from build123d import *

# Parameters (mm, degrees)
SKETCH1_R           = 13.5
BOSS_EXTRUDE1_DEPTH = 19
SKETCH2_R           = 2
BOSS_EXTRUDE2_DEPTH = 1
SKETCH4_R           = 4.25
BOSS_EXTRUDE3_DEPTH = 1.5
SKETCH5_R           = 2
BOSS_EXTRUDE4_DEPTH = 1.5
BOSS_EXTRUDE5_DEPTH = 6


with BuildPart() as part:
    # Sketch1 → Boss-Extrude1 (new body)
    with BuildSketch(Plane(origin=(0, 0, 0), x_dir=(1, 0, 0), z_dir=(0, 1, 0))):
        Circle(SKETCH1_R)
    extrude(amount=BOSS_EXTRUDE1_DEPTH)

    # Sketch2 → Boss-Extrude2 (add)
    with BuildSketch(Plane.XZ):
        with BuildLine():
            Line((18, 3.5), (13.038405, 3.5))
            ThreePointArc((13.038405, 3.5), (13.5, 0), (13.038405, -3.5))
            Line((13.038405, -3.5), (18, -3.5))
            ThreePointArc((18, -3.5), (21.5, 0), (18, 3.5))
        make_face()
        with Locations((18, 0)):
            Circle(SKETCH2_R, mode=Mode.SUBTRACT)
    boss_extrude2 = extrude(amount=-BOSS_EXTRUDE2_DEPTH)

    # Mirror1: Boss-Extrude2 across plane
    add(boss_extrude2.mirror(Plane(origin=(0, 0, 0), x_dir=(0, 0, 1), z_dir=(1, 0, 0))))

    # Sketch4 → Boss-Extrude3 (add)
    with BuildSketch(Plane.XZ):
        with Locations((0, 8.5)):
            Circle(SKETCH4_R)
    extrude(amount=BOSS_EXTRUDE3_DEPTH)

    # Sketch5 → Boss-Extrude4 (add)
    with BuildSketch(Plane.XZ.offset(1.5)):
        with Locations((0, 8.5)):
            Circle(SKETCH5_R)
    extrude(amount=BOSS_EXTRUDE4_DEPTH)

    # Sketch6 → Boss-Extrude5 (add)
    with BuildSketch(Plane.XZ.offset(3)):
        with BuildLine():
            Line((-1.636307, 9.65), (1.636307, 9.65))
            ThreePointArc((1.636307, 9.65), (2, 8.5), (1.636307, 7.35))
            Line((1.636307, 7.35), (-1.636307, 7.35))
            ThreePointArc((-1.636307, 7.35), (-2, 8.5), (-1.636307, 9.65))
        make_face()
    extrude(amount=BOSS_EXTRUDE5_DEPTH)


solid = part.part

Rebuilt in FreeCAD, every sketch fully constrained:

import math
import FreeCAD as App
import Part
import Sketcher

doc = App.newDocument("Part")
body = doc.addObject("PartDesign::Body", "Body")

sketch1 = body.newObject("Sketcher::SketchObject", "Sketch")
sketch1.AttachmentSupport = (doc.getObject("XZ_Plane"), [""])
sketch1.MapMode = "FlatFace"
sketch1.addGeometry(Part.Circle(App.Vector(0, 0, 0), App.Vector(0, 0, 1), 13.5), False)
sketch1.addConstraint(Sketcher.Constraint("Coincident", 0, 3, -1, 1))
sketch1.addConstraint(Sketcher.Constraint("Diameter", 0, 27.0))
pad1 = body.newObject("PartDesign::Pad", "Pad")
pad1.Profile = sketch1
pad1.Length = 19
pad1.Reversed = True

sketch2 = body.newObject("Sketcher::SketchObject", "Sketch001")
sketch2.AttachmentSupport = (doc.getObject("XZ_Plane"), [""])
sketch2.MapMode = "FlatFace"
sketch2.addGeometry(Part.LineSegment(App.Vector(18, 3.5, 0), App.Vector(13.038405, 3.5, 0)), False)
sketch2.addGeometry(Part.ArcOfCircle(Part.Circle(App.Vector(-0.000005, 0, 0), App.Vector(0, 0, 1), 13.500005), math.radians(-15.026108), math.radians(15.026108)), False)
sketch2.addGeometry(Part.LineSegment(App.Vector(13.038405, -3.5, 0), App.Vector(18, -3.5, 0)), False)
sketch2.addGeometry(Part.ArcOfCircle(Part.Circle(App.Vector(18, 0, 0), App.Vector(0, 0, 1), 3.5), math.radians(-90), math.radians(90)), False)
sketch2.addGeometry(Part.Circle(App.Vector(18, 0, 0), App.Vector(0, 0, 1), 2), False)
sketch2.addConstraint(Sketcher.Constraint("Coincident", 0, 2, 1, 2))
sketch2.addConstraint(Sketcher.Constraint("Coincident", 1, 1, 2, 1))
sketch2.addConstraint(Sketcher.Constraint("Tangent", 2, 2, 3, 1))
sketch2.addConstraint(Sketcher.Constraint("Tangent", 3, 2, 0, 1))
sketch2.addConstraint(Sketcher.Constraint("Horizontal", 0))
sketch2.addConstraint(Sketcher.Constraint("Horizontal", 2))
sketch2.addConstraint(Sketcher.Constraint("Coincident", 1, 3, -1, 1))
sketch2.addConstraint(Sketcher.Constraint("Coincident", 4, 3, 3, 3))
sketch2.addConstraint(Sketcher.Constraint("PointOnObject", 3, 3, -1))
sketch2.addConstraint(Sketcher.Constraint("Diameter", 4, 4.0))
sketch2.addConstraint(Sketcher.Constraint("Radius", 3, 3.5))
sketch2.addConstraint(Sketcher.Constraint("DistanceX", -1, 1, 3, 3, 18.0))
sketch2.addConstraint(Sketcher.Constraint("Radius", 1, 13.500005))
pad2 = body.newObject("PartDesign::Pad", "Pad001")
pad2.Profile = sketch2
pad2.Length = 1
pad2.Reversed = True
doc.recompute()

mirrored = body.newObject("PartDesign::Mirrored", "Mirrored")
mirrored.Originals = [pad2]
mirrored.MirrorPlane = (doc.getObject("YZ_Plane"), [""])
body.Tip = mirrored

sketch3 = body.newObject("Sketcher::SketchObject", "Sketch002")
sketch3.AttachmentSupport = (doc.getObject("XZ_Plane"), [""])
sketch3.MapMode = "FlatFace"
sketch3.addGeometry(Part.Circle(App.Vector(0, 8.5, 0), App.Vector(0, 0, 1), 4.25), False)
sketch3.addConstraint(Sketcher.Constraint("PointOnObject", 0, 3, -2))
sketch3.addConstraint(Sketcher.Constraint("Diameter", 0, 8.5))
sketch3.addConstraint(Sketcher.Constraint("DistanceY", -1, 1, 0, 3, 8.5))
pad3 = body.newObject("PartDesign::Pad", "Pad002")
pad3.Profile = sketch3
pad3.Length = 1.5

sketch4 = body.newObject("Sketcher::SketchObject", "Sketch003")
sketch4.AttachmentSupport = (doc.getObject("XZ_Plane"), [""])
sketch4.MapMode = "FlatFace"
sketch4.AttachmentOffset = App.Placement(App.Vector(0, 0, 1.5), App.Rotation())
sketch4.addGeometry(Part.Circle(App.Vector(0, 8.5, 0), App.Vector(0, 0, 1), 2), False)
sketch4.addConstraint(Sketcher.Constraint("PointOnObject", 0, 3, -2))
sketch4.addConstraint(Sketcher.Constraint("Diameter", 0, 4.0))
sketch4.addConstraint(Sketcher.Constraint("DistanceY", -1, 1, 0, 3, 8.5))
pad4 = body.newObject("PartDesign::Pad", "Pad003")
pad4.Profile = sketch4
pad4.Length = 1.5

sketch5 = body.newObject("Sketcher::SketchObject", "Sketch004")
sketch5.AttachmentSupport = (doc.getObject("XZ_Plane"), [""])
sketch5.MapMode = "FlatFace"
sketch5.AttachmentOffset = App.Placement(App.Vector(0, 0, 3), App.Rotation())
sketch5.addGeometry(Part.LineSegment(App.Vector(1.636307, 9.65, 0), App.Vector(-1.636307, 9.65, 0)), False)
sketch5.addGeometry(Part.ArcOfCircle(Part.Circle(App.Vector(0.000001, 8.5, 0), App.Vector(0, 0, 1), 2.000001), math.radians(144.900384), math.radians(215.099616)), False)
sketch5.addGeometry(Part.LineSegment(App.Vector(-1.636307, 7.35, 0), App.Vector(1.636307, 7.35, 0)), False)
sketch5.addGeometry(Part.ArcOfCircle(Part.Circle(App.Vector(-0.000001, 8.5, 0), App.Vector(0, 0, 1), 2.000001), math.radians(-35.099616), math.radians(35.099616)), False)
sketch5.addConstraint(Sketcher.Constraint("Coincident", 0, 2, 1, 1))
sketch5.addConstraint(Sketcher.Constraint("Coincident", 1, 2, 2, 1))
sketch5.addConstraint(Sketcher.Constraint("Coincident", 2, 2, 3, 1))
sketch5.addConstraint(Sketcher.Constraint("Coincident", 3, 2, 0, 1))
sketch5.addConstraint(Sketcher.Constraint("Horizontal", 0))
sketch5.addConstraint(Sketcher.Constraint("Horizontal", 2))
sketch5.addConstraint(Sketcher.Constraint("Coincident", 3, 3, 1, 3))
sketch5.addConstraint(Sketcher.Constraint("Equal", 1, 3))
sketch5.addConstraint(Sketcher.Constraint("PointOnObject", 1, 3, -2))
sketch5.addConstraint(Sketcher.Constraint("Vertical", 0, 2, 1, 2))
sketch5.addConstraint(Sketcher.Constraint("Radius", 1, 2.000001))
sketch5.addConstraint(Sketcher.Constraint("DistanceY", -1, 1, 1, 3, 8.5))
sketch5.addConstraint(Sketcher.Constraint("DistanceY", 1, 2, 0, 2, 2.3))
pad5 = body.newObject("PartDesign::Pad", "Pad004")
pad5.Profile = sketch5
pad5.Length = 6

doc.recompute()
